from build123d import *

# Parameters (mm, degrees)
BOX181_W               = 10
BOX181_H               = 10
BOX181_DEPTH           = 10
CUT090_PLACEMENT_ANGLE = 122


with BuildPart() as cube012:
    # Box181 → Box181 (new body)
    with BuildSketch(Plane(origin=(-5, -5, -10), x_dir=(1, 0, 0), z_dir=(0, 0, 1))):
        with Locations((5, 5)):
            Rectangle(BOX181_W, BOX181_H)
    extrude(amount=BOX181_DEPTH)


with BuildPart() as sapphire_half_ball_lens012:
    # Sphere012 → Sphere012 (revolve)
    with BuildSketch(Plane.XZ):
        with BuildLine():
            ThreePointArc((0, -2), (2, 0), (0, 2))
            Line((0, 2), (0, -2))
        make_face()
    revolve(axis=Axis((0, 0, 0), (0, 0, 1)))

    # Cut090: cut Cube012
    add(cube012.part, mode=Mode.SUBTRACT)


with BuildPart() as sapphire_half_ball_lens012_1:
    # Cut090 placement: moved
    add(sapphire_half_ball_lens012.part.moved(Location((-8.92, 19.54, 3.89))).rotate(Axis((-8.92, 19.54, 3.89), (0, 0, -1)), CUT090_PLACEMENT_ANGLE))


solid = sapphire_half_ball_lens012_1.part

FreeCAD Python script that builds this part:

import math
import FreeCAD as App
import Part
import Sketcher

V = App.Vector
Q = App.Units.Quantity

doc = App.newDocument("Part")
body = doc.addObject("PartDesign::Body", "Body")

# Sketch on XY plane
sketch1 = body.newObject("Sketcher::SketchObject", "Sketch")
sketch1.AttachmentSupport = (doc.getObject("XY_Plane"), [""])
sketch1.MapMode = "FlatFace"
sketch1.AttachmentOffset = App.Placement(V(0, 0, -10), App.Rotation())
sketch1.addGeometry([
    Part.LineSegment(V(-5, 5, 0), V(-5, -5, 0)),
    Part.LineSegment(V(-5, -5, 0), V(5, -5, 0)),
    Part.LineSegment(V(5, -5, 0), V(5, 5, 0)),
    Part.LineSegment(V(5, 5, 0), V(-5, 5, 0)),
], False)
sketch1.addConstraint([
    Sketcher.Constraint("Coincident", 0, 2, 1, 1),
    Sketcher.Constraint("Coincident", 1, 2, 2, 1),
    Sketcher.Constraint("Coincident", 2, 2, 3, 1),
    Sketcher.Constraint("Coincident", 3, 2, 0, 1),
    Sketcher.Constraint("Vertical", 0),
    Sketcher.Constraint("Horizontal", 1),
    Sketcher.Constraint("Vertical", 2),
    Sketcher.Constraint("Horizontal", 3),
    Sketcher.Constraint("Symmetric", 0, 2, 2, 2, -1, 1),
    Sketcher.Constraint("Equal", 3, 0),
    Sketcher.Constraint("DistanceX", 1, 1, 1, 2, Q("10 mm")),
])
pad1 = body.newObject("PartDesign::Pad", "Pad")
pad1.Profile = sketch1
pad1.Length = 10
body2 = doc.addObject("PartDesign::Body", "Body001")

# Sketch on XZ plane
sketch2 = body2.newObject("Sketcher::SketchObject", "Sketch001")
sketch2.AttachmentSupport = (doc.getObject("XZ_Plane001"), [""])
sketch2.MapMode = "FlatFace"
sketch2.addGeometry([
    Part.ArcOfCircle(Part.Circle(V(0, 0, 0), V(0, 0, 1), 2), math.radians(-90), math.radians(90)),
    Part.LineSegment(V(0, 2, 0), V(0, -2, 0)),
], False)
sketch2.addConstraint([
    Sketcher.Constraint("Coincident", 0, 1, 1, 2),
    Sketcher.Constraint("Coincident", 1, 1, 0, 2),
    Sketcher.Constraint("Vertical", 1),
    Sketcher.Constraint("Coincident", 0, 3, -1, 1),
    Sketcher.Constraint("PointOnObject", 0, 1, -2),
    Sketcher.Constraint("Radius", 0, Q("2 mm")),
])
revolution = body2.newObject("PartDesign::Revolution", "Revolution")
revolution.Profile = sketch2
revolution.ReferenceAxis = (sketch2, ["V_Axis"])
revolution.Angle = 360
doc.recompute()

boolean = body2.newObject("PartDesign::Boolean", "Boolean")
boolean.Type = "Cut"
boolean.addObjects([body])
body3 = doc.addObject("PartDesign::Body", "Body002")
doc.recompute()

body2.Placement = App.Placement(V(-8.92, 19.54, 3.89), App.Rotation(V(0, 0, -1), 122))
boolean2 = body3.newObject("PartDesign::Boolean", "Boolean001")
boolean2.Type = "Fuse"
boolean2.addObjects([body2])

doc.recompute()
